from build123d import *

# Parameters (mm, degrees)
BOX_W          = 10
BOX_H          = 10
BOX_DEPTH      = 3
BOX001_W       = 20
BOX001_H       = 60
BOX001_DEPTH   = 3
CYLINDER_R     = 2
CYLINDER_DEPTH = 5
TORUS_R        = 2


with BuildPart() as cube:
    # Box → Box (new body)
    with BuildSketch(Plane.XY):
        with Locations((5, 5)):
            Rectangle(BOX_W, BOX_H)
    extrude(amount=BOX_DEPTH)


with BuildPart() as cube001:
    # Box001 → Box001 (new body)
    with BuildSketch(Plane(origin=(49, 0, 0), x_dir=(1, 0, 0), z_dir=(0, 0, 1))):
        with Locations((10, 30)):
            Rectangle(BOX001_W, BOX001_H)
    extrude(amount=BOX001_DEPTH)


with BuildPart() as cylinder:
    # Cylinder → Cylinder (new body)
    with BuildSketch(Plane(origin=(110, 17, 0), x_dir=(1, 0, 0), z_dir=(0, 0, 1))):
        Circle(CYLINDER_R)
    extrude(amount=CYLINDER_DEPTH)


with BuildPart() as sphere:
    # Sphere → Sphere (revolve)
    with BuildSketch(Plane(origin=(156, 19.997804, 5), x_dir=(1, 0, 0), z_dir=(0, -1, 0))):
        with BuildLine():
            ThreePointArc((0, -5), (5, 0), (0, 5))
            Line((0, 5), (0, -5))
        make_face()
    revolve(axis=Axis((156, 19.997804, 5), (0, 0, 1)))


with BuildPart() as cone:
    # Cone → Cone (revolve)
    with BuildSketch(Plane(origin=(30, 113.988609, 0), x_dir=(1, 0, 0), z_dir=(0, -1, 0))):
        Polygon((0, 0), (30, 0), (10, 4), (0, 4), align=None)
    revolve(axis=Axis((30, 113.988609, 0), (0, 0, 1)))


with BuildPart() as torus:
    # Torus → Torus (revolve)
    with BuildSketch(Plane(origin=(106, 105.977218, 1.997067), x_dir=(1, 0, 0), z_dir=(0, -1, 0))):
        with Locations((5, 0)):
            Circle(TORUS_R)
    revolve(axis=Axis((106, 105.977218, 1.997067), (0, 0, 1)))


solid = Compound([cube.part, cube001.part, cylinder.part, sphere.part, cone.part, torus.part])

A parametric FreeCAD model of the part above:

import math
import FreeCAD as App
import Part
import Sketcher
Q = App.Units.Quantity


def add_polygon(sketch, points):
    """Adds a closed chain of lines whose ends are joined by coincident constraints."""
    first, n = sketch.GeometryCount, len(points)
    for a, b in zip(points, points[1:] + points[:1]):
        sketch.addGeometry(Part.LineSegment(App.Vector(*a, 0), App.Vector(*b, 0)), False)
    for i in range(n):
        sketch.addConstraint(Sketcher.Constraint("Coincident", first + i, 2, first + (i + 1) % n, 1))

doc = App.newDocument("Part")
body = doc.addObject("PartDesign::Body", "Body")

# Sketch on XY plane
sketch1 = body.newObject("Sketcher::SketchObject", "Sketch")
sketch1.AttachmentSupport = (doc.getObject("XY_Plane"), [""])
sketch1.MapMode = "FlatFace"
add_polygon(sketch1, [(0, 10), (0, 0), (10, 0), (10, 10)])  # lines 0-3
sketch1.addConstraint([
    Sketcher.Constraint("Vertical", 0),
    Sketcher.Constraint("Horizontal", 1),
    Sketcher.Constraint("Vertical", 2),
    Sketcher.Constraint("Horizontal", 3),
    Sketcher.Constraint("Coincident", 0, 2, -1, 1),
    Sketcher.Constraint("Equal", 3, 0),
    Sketcher.Constraint("DistanceX", 1, 1, 1, 2, Q("10 mm")),
])
pad1 = body.newObject("PartDesign::Pad", "Pad")
pad1.Profile = sketch1
pad1.Length = 3
body2 = doc.addObject("PartDesign::Body", "Body001")

# Sketch on XY plane
sketch2 = body2.newObject("Sketcher::SketchObject", "Sketch001")
sketch2.AttachmentSupport = (doc.getObject("XY_Plane001"), [""])
sketch2.MapMode = "FlatFace"
add_polygon(sketch2, [(49, 60), (49, 0), (69, 0), (69, 60)])  # lines 0-3
sketch2.addConstraint([
    Sketcher.Constraint("Vertical", 0),
    Sketcher.Constraint("Horizontal", 1),
    Sketcher.Constraint("Vertical", 2),
    Sketcher.Constraint("Horizontal", 3),
    Sketcher.Constraint("PointOnObject", 0, 2, -1),
    Sketcher.Constraint("DistanceX", 1, 1, 1, 2, Q("20 mm")),
    Sketcher.Constraint("DistanceY", 0, 2, 0, 1, Q("60 mm")),
    Sketcher.Constraint("DistanceX", -1, 1, 0, 2, Q("49 mm")),
])
pad2 = body2.newObject("PartDesign::Pad", "Pad001")
pad2.Profile = sketch2
pad2.Length = 3
body3 = doc.addObject("PartDesign::Body", "Body002")

# Sketch on XY plane
sketch3 = body3.newObject("Sketcher::SketchObject", "Sketch002")
sketch3.AttachmentSupport = (doc.getObject("XY_Plane002"), [""])
sketch3.MapMode = "FlatFace"
sketch3.addGeometry(Part.Circle(App.Vector(110, 17, 0), App.Vector(0, 0, 1), 2), False)
sketch3.addConstraint([
    Sketcher.Constraint("Diameter", 0, Q("4 mm")),
    Sketcher.Constraint("DistanceX", -1, 1, 0, 3, Q("110 mm")),
    Sketcher.Constraint("DistanceY", -1, 1, 0, 3, Q("17 mm")),
])
pad3 = body3.newObject("PartDesign::Pad", "Pad002")
pad3.Profile = sketch3
pad3.Length = 5
body4 = doc.addObject("PartDesign::Body", "Body003")

# Sketch on XZ plane
sketch4 = body4.newObject("Sketcher::SketchObject", "Sketch003")
sketch4.AttachmentSupport = (doc.getObject("XZ_Plane003"), [""])
sketch4.MapMode = "FlatFace"
sketch4.AttachmentOffset = App.Placement(App.Vector(0, 0, -19.997804), App.Rotation())
sketch4.addGeometry([
    Part.ArcOfCircle(Part.Circle(App.Vector(156, 5, 0), App.Vector(0, 0, 1), 5), math.radians(-90), math.radians(90)),
    Part.LineSegment(App.Vector(156, 10, 0), App.Vector(156, 0, 0)),
], False)
sketch4.addGeometry(Part.LineSegment(App.Vector(156, 0, 0), App.Vector(156, 10, 0)), True)  # axis
sketch4.addConstraint([
    Sketcher.Constraint("Coincident", 0, 1, 1, 2),
    Sketcher.Constraint("Coincident", 1, 1, 0, 2),
    Sketcher.Constraint("Vertical", 1),
    Sketcher.Constraint("Vertical", 2),
    Sketcher.Constraint("Coincident", 2, 1, 0, 1),
    Sketcher.Constraint("PointOnObject", 0, 1, -1),
    Sketcher.Constraint("Equal", 1, 2),
    Sketcher.Constraint("Radius", 0, Q("5 mm")),
    Sketcher.Constraint("DistanceX", -1, 1, 0, 3, Q("156 mm")),
    Sketcher.Constraint("DistanceX", -1, 1, 0, 1, Q("156 mm")),
])
revolution = body4.newObject("PartDesign::Revolution", "Revolution")
revolution.Profile = sketch4
revolution.ReferenceAxis = (sketch4, ["Axis0"])
revolution.Angle = 360
body5 = doc.addObject("PartDesign::Body", "Body004")

# Sketch on XZ plane
sketch5 = body5.newObject("Sketcher::SketchObject", "Sketch004")
sketch5.AttachmentSupport = (doc.getObject("XZ_Plane004"), [""])
sketch5.MapMode = "FlatFace"
sketch5.AttachmentOffset = App.Placement(App.Vector(0, 0, -113.988609), App.Rotation())
add_polygon(sketch5, [(30, 0), (60, 0), (40, 4), (30, 4)])  # lines 0-3
sketch5.addGeometry(Part.LineSegment(App.Vector(30, 0, 0), App.Vector(30, 4, 0)), True)  # axis
sketch5.addConstraint([
    Sketcher.Constraint("Horizontal", 0),
    Sketcher.Constraint("Horizontal", 2),
    Sketcher.Constraint("Vertical", 3),
    Sketcher.Constraint("Vertical", 4),
    Sketcher.Constraint("Coincident", 4, 1, 3, 2),
    Sketcher.Constraint("PointOnObject", 0, 2, -1),
    Sketcher.Constraint("Horizontal", 1, 2, 4, 2),
    Sketcher.Constraint("DistanceX", 0, 1, 0, 2, Q("30 mm")),
    Sketcher.Constraint("DistanceX", 2, 2, 2, 1, Q("10 mm")),
    Sketcher.Constraint("DistanceY", 3, 2, 3, 1, Q("4 mm")),
    Sketcher.Constraint("DistanceX", -1, 1, 0, 2, Q("60 mm")),
])
revolution2 = body5.newObject("PartDesign::Revolution", "Revolution001")
revolution2.Profile = sketch5
revolution2.ReferenceAxis = (sketch5, ["Axis0"])
revolution2.Angle = 360
body6 = doc.addObject("PartDesign::Body", "Body005")

# Sketch on XZ plane
sketch6 = body6.newObject("Sketcher::SketchObject", "Sketch005")
sketch6.AttachmentSupport = (doc.getObject("XZ_Plane005"), [""])
sketch6.MapMode = "FlatFace"
sketch6.AttachmentOffset = App.Placement(App.Vector(0, 0, -105.977218), App.Rotation())
sketch6.addGeometry(Part.Circle(App.Vector(111, 2, 0), App.Vector(0, 0, 1), 2), False)
sketch6.addGeometry(Part.LineSegment(App.Vector(106, 2, 0), App.Vector(106, 12, 0)), True)  # axis
sketch6.addConstraint([
    Sketcher.Constraint("Vertical", 1),
    Sketcher.Constraint("Horizontal", 0, 3, 1, 1),
    Sketcher.Constraint("Diameter", 0, Q("4 mm")),
    Sketcher.Constraint("DistanceY", 1, 1, 1, 2, Q("10 mm")),
    Sketcher.Constraint("DistanceX", -1, 1, 0, 3, Q("111 mm")),
    Sketcher.Constraint("DistanceX", -1, 1, 1, 1, Q("106 mm")),
    Sketcher.Constraint("DistanceY", -1, 1, 0, 3, Q("1.997067 mm")),
])
revolution3 = body6.newObject("PartDesign::Revolution", "Revolution002")
revolution3.Profile = sketch6
revolution3.ReferenceAxis = (sketch6, ["Axis0"])
revolution3.Angle = 360

doc.recompute()
